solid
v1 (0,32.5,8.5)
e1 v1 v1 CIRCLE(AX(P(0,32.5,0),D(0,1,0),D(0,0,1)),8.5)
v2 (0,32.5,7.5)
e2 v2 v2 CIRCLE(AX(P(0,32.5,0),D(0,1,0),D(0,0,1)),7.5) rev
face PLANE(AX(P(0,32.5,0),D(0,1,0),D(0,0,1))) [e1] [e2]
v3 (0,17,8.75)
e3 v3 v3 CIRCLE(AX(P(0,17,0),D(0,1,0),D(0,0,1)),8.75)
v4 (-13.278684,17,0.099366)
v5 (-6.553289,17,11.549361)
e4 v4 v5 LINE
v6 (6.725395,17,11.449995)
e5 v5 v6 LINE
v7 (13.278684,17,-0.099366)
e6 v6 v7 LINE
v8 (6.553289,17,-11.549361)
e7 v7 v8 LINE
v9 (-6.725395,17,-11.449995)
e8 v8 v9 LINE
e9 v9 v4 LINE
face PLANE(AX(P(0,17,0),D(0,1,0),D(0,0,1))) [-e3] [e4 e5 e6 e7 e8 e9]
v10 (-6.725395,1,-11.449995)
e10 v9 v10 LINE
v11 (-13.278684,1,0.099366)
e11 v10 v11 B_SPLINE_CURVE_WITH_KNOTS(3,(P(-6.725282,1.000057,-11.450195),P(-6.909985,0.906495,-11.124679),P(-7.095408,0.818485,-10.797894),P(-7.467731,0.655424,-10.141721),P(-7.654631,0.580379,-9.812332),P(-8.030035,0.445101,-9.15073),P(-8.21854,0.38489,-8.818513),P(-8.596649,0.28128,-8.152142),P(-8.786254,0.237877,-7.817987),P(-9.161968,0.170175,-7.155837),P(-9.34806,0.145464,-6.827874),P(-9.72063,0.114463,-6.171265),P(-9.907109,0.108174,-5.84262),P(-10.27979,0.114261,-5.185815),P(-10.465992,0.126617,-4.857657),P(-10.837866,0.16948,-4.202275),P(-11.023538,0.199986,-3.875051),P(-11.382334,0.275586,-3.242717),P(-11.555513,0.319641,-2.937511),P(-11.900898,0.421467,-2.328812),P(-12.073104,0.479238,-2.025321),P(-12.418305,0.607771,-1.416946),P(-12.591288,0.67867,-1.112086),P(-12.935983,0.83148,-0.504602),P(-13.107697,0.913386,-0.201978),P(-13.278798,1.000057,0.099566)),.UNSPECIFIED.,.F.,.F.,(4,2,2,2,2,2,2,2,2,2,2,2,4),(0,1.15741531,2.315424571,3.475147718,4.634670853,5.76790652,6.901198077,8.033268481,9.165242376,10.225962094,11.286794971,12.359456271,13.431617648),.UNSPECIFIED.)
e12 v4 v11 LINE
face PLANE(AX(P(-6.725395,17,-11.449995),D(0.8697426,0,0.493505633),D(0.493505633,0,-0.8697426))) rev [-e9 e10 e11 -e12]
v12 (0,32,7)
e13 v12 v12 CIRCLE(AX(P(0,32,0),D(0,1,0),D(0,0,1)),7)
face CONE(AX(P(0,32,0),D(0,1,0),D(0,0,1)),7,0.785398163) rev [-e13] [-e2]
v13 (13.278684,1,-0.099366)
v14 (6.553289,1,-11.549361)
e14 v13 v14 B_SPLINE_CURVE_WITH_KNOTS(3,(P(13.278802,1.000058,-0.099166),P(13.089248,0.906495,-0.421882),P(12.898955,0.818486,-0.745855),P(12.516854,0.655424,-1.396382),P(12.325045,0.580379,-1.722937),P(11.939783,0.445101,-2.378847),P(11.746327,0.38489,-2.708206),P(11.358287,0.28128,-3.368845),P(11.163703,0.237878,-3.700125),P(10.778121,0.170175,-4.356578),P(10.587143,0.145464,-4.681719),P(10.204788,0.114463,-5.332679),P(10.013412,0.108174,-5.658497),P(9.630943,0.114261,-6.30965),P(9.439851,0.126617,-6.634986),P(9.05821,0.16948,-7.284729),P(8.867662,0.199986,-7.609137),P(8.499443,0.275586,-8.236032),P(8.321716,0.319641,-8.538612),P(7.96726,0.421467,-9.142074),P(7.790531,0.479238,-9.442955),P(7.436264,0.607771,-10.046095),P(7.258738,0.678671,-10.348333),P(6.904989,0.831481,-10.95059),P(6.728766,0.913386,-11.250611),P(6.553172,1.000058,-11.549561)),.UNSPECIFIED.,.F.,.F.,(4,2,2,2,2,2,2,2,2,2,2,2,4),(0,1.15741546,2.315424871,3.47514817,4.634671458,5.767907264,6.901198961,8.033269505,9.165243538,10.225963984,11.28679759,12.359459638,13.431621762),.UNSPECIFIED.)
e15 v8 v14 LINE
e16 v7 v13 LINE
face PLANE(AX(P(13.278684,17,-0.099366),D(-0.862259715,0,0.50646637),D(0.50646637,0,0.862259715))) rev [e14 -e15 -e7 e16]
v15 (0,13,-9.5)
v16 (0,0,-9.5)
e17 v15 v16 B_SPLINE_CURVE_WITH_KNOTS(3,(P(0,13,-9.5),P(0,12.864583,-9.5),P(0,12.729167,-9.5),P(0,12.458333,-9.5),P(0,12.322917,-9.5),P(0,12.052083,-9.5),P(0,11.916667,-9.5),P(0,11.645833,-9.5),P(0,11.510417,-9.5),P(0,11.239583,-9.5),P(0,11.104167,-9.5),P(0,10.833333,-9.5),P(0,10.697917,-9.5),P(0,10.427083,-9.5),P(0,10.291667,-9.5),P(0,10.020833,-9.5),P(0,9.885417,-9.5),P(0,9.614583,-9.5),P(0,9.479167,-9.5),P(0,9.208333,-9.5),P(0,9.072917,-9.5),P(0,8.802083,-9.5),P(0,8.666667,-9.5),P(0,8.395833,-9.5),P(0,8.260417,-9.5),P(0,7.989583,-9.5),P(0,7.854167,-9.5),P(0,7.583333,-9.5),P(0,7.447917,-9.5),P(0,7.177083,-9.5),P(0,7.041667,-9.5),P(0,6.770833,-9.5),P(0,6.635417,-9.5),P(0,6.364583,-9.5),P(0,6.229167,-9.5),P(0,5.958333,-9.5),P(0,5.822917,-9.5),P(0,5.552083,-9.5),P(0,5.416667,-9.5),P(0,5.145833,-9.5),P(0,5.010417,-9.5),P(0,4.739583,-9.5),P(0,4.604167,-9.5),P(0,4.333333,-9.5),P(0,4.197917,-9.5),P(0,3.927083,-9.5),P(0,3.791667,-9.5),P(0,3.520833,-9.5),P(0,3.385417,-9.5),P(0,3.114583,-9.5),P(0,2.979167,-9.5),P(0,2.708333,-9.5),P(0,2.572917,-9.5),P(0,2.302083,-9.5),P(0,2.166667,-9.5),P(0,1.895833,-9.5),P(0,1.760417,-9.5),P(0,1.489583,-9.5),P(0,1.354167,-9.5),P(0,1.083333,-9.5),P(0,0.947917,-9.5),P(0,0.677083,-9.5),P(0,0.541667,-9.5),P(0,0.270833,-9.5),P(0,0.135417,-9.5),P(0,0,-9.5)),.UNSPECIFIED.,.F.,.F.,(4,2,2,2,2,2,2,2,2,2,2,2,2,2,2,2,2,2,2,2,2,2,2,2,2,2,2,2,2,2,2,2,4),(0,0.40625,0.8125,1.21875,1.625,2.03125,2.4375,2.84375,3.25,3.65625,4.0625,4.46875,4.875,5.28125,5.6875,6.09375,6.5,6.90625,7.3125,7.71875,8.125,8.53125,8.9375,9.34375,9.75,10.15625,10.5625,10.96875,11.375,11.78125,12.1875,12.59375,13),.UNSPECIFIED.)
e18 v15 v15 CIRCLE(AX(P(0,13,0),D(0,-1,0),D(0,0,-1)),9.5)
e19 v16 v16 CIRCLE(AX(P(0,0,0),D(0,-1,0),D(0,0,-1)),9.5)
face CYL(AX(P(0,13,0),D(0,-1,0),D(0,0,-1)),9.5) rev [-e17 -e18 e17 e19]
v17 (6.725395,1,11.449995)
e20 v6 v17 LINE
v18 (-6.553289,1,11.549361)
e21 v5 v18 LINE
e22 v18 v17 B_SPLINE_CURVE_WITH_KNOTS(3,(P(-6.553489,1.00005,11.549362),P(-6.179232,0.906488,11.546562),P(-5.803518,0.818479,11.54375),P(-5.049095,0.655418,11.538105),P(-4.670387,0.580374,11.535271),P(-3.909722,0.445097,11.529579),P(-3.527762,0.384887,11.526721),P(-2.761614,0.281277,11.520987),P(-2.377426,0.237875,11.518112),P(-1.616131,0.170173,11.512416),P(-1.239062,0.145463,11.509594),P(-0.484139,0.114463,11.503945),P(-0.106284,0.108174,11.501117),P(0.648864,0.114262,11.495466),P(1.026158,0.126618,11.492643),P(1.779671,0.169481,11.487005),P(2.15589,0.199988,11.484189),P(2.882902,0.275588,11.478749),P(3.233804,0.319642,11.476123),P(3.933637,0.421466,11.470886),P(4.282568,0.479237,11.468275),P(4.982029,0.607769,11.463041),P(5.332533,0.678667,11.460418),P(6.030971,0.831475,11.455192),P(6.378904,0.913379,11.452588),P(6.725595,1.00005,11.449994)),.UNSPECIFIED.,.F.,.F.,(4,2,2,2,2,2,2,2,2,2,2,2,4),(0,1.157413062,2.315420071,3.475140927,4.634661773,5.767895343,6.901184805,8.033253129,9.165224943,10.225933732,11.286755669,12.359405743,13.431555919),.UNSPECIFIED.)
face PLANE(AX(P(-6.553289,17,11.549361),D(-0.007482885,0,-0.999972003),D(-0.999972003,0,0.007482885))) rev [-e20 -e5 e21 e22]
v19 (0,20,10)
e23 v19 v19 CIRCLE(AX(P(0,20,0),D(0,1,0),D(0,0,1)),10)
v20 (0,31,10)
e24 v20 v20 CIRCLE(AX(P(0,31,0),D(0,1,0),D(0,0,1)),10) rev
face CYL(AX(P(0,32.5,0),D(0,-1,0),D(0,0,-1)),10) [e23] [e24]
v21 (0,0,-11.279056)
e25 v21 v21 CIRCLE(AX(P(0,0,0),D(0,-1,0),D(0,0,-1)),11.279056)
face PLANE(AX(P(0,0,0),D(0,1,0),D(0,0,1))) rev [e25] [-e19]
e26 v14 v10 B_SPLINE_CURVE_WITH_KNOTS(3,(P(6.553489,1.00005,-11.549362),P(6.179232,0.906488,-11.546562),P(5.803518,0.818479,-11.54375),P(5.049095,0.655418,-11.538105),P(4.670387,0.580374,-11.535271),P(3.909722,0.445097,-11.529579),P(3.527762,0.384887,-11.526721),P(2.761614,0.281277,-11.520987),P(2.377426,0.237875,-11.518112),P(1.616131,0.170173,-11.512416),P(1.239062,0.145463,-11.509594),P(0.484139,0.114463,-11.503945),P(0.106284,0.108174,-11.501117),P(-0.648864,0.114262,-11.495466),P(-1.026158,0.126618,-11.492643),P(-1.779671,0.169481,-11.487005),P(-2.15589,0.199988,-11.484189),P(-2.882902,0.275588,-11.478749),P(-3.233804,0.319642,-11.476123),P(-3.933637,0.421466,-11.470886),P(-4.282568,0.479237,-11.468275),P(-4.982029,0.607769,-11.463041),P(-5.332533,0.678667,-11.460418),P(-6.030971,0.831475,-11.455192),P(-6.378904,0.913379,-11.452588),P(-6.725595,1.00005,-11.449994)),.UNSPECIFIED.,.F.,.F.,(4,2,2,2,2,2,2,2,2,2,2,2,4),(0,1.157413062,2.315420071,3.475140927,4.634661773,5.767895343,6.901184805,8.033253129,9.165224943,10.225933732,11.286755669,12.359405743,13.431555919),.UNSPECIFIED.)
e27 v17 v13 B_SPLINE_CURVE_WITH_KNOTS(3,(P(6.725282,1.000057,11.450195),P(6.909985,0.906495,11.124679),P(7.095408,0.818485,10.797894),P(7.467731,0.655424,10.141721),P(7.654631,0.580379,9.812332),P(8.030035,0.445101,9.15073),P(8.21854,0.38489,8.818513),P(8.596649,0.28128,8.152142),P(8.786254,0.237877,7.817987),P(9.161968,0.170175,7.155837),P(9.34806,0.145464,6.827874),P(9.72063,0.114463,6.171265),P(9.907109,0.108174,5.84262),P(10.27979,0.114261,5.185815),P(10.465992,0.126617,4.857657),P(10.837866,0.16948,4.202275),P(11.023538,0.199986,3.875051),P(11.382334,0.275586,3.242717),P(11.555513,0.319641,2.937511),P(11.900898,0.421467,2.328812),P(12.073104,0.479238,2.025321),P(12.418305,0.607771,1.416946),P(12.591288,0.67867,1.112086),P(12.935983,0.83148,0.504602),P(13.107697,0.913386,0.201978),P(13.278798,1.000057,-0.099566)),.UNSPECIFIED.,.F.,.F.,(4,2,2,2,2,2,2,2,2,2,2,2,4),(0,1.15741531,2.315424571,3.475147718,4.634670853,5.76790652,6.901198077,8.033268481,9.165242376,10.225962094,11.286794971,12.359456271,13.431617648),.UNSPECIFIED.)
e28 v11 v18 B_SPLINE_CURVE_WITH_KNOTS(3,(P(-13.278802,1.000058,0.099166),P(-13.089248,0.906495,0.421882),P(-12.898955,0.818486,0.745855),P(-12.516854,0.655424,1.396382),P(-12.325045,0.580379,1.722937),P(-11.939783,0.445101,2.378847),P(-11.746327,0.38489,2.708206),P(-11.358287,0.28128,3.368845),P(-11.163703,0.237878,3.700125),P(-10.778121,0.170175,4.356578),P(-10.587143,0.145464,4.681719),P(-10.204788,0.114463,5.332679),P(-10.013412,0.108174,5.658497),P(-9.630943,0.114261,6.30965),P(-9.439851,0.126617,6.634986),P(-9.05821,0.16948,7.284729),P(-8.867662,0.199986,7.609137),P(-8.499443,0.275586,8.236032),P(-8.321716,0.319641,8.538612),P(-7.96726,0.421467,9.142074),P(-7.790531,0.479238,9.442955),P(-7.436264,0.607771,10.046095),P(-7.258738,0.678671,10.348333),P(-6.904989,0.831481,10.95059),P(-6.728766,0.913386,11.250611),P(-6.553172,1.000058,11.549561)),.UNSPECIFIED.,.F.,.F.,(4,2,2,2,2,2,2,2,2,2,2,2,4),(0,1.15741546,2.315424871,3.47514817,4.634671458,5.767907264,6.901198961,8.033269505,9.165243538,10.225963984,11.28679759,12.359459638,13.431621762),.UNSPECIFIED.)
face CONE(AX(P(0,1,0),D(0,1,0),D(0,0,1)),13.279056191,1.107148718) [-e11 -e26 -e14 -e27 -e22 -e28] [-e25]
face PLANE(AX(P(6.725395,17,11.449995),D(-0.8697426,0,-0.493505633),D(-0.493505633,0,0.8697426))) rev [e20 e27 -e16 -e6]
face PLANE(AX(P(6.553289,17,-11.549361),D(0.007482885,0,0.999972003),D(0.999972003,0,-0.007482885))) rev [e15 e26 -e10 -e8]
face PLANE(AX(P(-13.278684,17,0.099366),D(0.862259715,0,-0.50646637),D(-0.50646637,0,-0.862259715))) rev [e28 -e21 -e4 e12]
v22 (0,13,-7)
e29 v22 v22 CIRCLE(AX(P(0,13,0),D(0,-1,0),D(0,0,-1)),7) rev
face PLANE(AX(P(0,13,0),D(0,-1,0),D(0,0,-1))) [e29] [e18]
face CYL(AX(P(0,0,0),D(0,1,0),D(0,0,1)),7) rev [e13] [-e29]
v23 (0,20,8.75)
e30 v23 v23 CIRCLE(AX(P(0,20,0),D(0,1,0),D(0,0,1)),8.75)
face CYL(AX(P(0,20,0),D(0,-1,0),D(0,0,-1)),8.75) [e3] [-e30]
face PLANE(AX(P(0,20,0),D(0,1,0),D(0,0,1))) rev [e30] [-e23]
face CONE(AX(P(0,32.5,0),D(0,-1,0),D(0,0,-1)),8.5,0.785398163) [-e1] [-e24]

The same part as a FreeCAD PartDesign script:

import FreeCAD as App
import Part
import Sketcher
from FreeCAD import Vector
Q = App.Units.Quantity


def edges_at(feature, points):
    """Names of the edges that pass closest to the given points."""
    edges = feature.Shape.Edges
    near = lambda p: min(range(len(edges)), key=lambda i: edges[i].distToShape(Part.Vertex(*p))[0])
    return sorted({f"Edge{near(p) + 1}" for p in points})


def add_polygon(sketch, points):
    """Adds a closed chain of lines whose ends are joined by coincident constraints."""
    first, n = sketch.GeometryCount, len(points)
    for a, b in zip(points, points[1:] + points[:1]):
        sketch.addGeometry(Part.LineSegment(App.Vector(*a, 0), App.Vector(*b, 0)), False)
    for i in range(n):
        sketch.addConstraint(Sketcher.Constraint("Coincident", first + i, 2, first + (i + 1) % n, 1))

doc = App.newDocument("Part")
body = doc.addObject("PartDesign::Body", "Body")

sketch1 = body.newObject("Sketcher::SketchObject", "Sketch")
sketch1.AttachmentSupport = (doc.getObject("XZ_Plane"), [""])
sketch1.MapMode = "FlatFace"
add_polygon(sketch1, [(7, -12), (-7, -11), (-13, 0), (-7, 12), (7, 11), (13, 0)])
sketch1.addConstraint([
    Sketcher.Constraint("Symmetric", 0, 2, 3, 2, -1, 1),
    Sketcher.Constraint("Symmetric", 1, 2, 4, 2, -1, 1),
    Sketcher.Constraint("Symmetric", 2, 2, 5, 2, -1, 1),
    Sketcher.Constraint("Equal", 0, 1),
    Sketcher.Constraint("Equal", 1, 2),
    Sketcher.Constraint("DistanceX", 2, 2, -1, 1, Q("6.553289 mm")),
    Sketcher.Constraint("DistanceY", -1, 1, 2, 2, Q("11.549361 mm")),
    Sketcher.Constraint("DistanceX", 1, 2, 0, 2, Q("6.553289 mm")),
    Sketcher.Constraint("DistanceY", 0, 2, 1, 2, Q("11.549361 mm")),
])
pad1 = body.newObject("PartDesign::Pad", "Pad")
pad1.Profile = sketch1
pad1.Length = 17
pad1.Reversed = True

sketch2 = body.newObject("Sketcher::SketchObject", "Sketch001")
sketch2.AttachmentSupport = (doc.getObject("XZ_Plane"), [""])
sketch2.MapMode = "FlatFace"
sketch2.AttachmentOffset = App.Placement(Vector(0, 0, -17), App.Rotation())
sketch2.addGeometry(Part.Circle(Vector(0, 0, 0), Vector(0, 0, 1), 9), False)
sketch2.addConstraint([
    Sketcher.Constraint("Coincident", 0, 3, -1, 1),
    Sketcher.Constraint("Diameter", 0, Q("17.5 mm")),
])
pad2 = body.newObject("PartDesign::Pad", "Pad001")
pad2.Profile = sketch2
pad2.Length = 3
pad2.Reversed = True

sketch3 = body.newObject("Sketcher::SketchObject", "Sketch002")
sketch3.AttachmentSupport = (doc.getObject("XZ_Plane"), [""])
sketch3.MapMode = "FlatFace"
sketch3.AttachmentOffset = App.Placement(Vector(0, 0, -20), App.Rotation())
sketch3.addGeometry(Part.Circle(Vector(0, 0, 0), Vector(0, 0, 1), 10), False)
sketch3.addConstraint([
    Sketcher.Constraint("Coincident", 0, 3, -1, 1),
    Sketcher.Constraint("Diameter", 0, Q("20 mm")),
])
pad3 = body.newObject("PartDesign::Pad", "Pad002")
pad3.Profile = sketch3
pad3.Length = 12.5
pad3.Reversed = True
doc.recompute()

chamfer = body.newObject("PartDesign::Chamfer", "Chamfer")
chamfer.Base = (pad3, edges_at(pad3, [(0, 32.5, -10)]))
chamfer.Size = 1.5

sketch4 = body.newObject("Sketcher::SketchObject", "Sketch003")
sketch4.Placement = App.Placement(Vector(0, 0, 0), App.Rotation(Vector(0.493505633, 0, -0.8697426), Vector(0, 1, 0), Vector(0.8697426, 0, 0.493505633), "ZXY"))
add_polygon(sketch4, [(13.3, 1), (11.3, 0), (13.3, 0)])
sketch4.addConstraint([
    Sketcher.Constraint("Horizontal", 1),
    Sketcher.Constraint("Vertical", 2),
    Sketcher.Constraint("PointOnObject", 0, 2, -1),
    Sketcher.Constraint("DistanceX", 1, 1, 1, 2, Q("2 mm")),
    Sketcher.Constraint("DistanceY", 2, 1, 2, 2, Q("1 mm")),
    Sketcher.Constraint("DistanceX", -1, 1, 0, 2, Q("11.279056 mm")),
])
groove = body.newObject("PartDesign::Groove", "Groove")
groove.Profile = sketch4
groove.ReferenceAxis = (sketch4, ["V_Axis"])
groove.Angle = 360

sketch5 = body.newObject("Sketcher::SketchObject", "Sketch004")
sketch5.AttachmentSupport = (doc.getObject("XZ_Plane"), [""])
sketch5.MapMode = "FlatFace"
sketch5.AttachmentOffset = App.Placement(Vector(0, 0, -32.5), App.Rotation())
sketch5.addGeometry(Part.Circle(Vector(0, 0, 0), Vector(0, 0, 1), 7), False)
sketch5.addConstraint([
    Sketcher.Constraint("Coincident", 0, 3, -1, 1),
    Sketcher.Constraint("Diameter", 0, Q("14 mm")),
])
pocket1 = body.newObject("PartDesign::Pocket", "Pocket")
pocket1.Profile = sketch5
pocket1.Type = "ThroughAll"
pocket1.Reversed = True
doc.recompute()

chamfer2 = body.newObject("PartDesign::Chamfer", "Chamfer001")
chamfer2.Base = (pocket1, edges_at(pocket1, [(0, 0, -7), (0, 32.5, -7)]))
chamfer2.Size = 0.5

sketch6 = body.newObject("Sketcher::SketchObject", "Sketch005")
sketch6.AttachmentSupport = (doc.getObject("XZ_Plane"), [""])
sketch6.MapMode = "FlatFace"
sketch6.addGeometry(Part.Circle(Vector(0, 0, 0), Vector(0, 0, 1), 10), False)
sketch6.addConstraint([
    Sketcher.Constraint("Coincident", 0, 3, -1, 1),
    Sketcher.Constraint("Diameter", 0, Q("19 mm")),
])
pocket2 = body.newObject("PartDesign::Pocket", "Pocket001")
pocket2.Profile = sketch6
pocket2.Length = 13

doc.recompute()
